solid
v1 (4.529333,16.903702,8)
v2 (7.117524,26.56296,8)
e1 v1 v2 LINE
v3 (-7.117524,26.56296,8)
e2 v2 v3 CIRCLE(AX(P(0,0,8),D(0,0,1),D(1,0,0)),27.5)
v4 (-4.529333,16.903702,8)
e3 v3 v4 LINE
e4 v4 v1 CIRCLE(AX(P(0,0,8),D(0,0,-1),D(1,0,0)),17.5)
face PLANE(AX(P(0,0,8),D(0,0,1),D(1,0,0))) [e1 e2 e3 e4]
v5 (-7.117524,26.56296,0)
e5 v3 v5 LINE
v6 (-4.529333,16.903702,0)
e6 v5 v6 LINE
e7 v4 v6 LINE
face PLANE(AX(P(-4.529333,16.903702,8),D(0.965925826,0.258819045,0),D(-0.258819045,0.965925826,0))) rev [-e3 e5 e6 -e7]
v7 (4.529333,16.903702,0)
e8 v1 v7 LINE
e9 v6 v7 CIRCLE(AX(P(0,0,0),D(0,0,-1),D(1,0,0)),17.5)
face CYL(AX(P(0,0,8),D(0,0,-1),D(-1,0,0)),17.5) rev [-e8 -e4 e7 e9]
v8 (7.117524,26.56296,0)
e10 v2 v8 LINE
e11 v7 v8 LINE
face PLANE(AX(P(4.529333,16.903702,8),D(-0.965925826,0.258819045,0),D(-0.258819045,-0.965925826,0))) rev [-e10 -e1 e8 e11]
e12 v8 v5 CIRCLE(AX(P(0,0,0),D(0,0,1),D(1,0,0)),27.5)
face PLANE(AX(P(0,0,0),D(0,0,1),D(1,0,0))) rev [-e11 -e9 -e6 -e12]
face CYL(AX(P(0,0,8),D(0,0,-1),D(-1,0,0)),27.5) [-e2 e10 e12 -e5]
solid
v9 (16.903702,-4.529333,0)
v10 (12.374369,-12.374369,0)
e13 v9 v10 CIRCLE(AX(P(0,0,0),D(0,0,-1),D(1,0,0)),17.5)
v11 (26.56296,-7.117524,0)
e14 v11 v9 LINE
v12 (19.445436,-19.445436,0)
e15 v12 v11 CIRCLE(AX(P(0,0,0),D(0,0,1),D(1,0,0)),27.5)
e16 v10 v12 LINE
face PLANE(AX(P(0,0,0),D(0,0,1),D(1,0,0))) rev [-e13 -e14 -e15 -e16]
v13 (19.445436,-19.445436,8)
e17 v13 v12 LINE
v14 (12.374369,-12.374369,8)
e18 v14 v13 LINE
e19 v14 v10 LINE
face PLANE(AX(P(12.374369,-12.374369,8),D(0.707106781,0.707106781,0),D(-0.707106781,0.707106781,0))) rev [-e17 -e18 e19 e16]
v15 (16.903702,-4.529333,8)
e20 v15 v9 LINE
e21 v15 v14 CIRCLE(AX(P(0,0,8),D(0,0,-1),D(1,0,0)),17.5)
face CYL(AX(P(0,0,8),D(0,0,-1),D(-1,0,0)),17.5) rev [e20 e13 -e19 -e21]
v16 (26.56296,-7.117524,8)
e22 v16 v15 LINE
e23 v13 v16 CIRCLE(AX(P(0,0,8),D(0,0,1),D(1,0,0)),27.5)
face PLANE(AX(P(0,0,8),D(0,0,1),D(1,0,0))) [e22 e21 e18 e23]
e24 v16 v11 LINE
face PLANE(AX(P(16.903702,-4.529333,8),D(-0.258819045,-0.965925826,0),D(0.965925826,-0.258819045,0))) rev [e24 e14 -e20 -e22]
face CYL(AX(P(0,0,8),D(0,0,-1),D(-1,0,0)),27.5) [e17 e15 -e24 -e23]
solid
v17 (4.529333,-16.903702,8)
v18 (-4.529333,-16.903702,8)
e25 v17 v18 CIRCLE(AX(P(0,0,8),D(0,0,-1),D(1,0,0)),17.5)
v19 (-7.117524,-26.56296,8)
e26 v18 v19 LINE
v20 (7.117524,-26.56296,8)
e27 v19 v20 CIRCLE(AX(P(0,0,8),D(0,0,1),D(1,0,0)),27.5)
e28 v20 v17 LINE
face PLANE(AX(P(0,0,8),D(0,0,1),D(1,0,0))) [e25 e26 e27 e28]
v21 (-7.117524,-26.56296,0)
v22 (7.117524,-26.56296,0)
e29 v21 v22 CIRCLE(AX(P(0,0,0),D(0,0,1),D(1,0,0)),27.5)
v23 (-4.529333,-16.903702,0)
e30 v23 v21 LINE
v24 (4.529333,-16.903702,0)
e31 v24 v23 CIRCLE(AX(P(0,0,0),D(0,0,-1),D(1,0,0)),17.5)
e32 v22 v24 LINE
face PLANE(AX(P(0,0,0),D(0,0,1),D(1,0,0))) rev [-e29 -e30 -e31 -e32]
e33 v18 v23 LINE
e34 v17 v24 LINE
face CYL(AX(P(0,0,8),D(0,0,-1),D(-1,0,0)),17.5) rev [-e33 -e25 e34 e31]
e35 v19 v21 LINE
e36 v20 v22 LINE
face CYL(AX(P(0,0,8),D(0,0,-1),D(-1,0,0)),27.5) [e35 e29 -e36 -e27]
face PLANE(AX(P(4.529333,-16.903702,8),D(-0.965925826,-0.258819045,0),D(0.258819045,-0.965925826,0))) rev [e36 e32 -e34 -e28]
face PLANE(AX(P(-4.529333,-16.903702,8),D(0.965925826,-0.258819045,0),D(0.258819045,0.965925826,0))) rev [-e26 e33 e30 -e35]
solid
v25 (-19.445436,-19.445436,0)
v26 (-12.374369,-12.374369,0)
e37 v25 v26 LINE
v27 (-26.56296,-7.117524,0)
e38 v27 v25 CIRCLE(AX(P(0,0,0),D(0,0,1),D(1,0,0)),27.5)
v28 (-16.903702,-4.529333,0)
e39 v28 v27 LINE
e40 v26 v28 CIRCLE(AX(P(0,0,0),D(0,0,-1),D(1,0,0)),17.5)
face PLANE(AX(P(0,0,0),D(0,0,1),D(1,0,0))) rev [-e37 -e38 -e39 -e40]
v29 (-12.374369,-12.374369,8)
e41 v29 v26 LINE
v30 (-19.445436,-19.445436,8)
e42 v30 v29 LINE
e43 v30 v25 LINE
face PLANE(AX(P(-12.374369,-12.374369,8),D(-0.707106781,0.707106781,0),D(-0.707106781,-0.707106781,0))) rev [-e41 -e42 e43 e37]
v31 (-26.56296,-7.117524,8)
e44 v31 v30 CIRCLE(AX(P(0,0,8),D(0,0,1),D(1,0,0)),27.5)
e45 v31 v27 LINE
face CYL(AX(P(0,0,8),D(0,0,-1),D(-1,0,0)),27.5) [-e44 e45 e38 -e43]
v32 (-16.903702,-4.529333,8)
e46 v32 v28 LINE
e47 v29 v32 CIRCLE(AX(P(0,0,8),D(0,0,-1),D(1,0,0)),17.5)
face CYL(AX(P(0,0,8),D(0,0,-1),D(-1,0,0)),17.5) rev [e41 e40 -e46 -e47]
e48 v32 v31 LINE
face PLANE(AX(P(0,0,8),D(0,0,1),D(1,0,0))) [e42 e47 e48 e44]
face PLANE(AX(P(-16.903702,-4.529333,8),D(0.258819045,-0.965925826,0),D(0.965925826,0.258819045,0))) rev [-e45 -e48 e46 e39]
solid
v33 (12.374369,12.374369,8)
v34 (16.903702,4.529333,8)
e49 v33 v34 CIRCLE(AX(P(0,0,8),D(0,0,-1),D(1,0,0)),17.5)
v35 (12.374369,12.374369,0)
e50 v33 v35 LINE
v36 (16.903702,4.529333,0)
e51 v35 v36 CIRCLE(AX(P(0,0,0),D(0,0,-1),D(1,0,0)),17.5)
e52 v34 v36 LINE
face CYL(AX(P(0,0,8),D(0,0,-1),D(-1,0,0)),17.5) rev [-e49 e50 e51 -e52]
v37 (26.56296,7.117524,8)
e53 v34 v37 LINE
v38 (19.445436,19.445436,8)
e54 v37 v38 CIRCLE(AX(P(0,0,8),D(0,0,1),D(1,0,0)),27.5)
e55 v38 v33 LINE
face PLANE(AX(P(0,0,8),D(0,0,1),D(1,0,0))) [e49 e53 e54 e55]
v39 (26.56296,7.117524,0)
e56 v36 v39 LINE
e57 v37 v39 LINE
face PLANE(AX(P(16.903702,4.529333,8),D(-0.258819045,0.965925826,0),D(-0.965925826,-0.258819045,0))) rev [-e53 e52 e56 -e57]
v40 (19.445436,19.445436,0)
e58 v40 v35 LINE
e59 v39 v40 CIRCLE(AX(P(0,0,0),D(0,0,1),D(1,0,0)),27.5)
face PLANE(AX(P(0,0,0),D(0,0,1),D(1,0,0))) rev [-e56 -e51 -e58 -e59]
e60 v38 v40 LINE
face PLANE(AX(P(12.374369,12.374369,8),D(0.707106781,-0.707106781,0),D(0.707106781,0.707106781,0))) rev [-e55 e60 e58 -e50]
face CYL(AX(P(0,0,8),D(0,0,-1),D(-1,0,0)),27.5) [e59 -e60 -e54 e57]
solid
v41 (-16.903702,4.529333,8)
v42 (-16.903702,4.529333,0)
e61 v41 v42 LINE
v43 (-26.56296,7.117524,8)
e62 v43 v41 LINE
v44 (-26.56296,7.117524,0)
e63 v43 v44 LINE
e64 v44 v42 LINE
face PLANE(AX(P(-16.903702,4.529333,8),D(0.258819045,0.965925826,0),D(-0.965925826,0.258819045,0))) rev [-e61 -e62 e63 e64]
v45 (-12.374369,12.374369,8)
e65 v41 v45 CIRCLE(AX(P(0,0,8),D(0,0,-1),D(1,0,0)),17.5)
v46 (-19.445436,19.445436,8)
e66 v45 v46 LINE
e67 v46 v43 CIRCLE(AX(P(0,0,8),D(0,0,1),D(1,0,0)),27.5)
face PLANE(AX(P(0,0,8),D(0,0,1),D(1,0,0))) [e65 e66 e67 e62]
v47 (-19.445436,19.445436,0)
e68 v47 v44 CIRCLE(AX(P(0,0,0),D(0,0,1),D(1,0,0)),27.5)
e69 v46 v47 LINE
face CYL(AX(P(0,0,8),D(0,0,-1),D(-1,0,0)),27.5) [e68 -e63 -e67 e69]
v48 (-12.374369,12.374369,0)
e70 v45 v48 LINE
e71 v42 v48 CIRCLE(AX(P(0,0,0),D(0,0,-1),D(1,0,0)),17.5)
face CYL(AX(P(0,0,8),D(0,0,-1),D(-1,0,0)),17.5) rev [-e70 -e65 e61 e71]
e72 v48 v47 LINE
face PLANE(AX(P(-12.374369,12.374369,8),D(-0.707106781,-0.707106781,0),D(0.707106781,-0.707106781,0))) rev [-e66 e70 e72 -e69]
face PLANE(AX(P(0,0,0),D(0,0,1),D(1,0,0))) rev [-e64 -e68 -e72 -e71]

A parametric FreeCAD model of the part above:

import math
import FreeCAD as App
import Part
import Sketcher

V = App.Vector
Q = App.Units.Quantity

doc = App.newDocument("Part")
params = doc.addObject("Spreadsheet::Sheet", "Params")
for row, (alias, value) in enumerate([
    ("sketch1_radius", "17.5 mm"),
    ("sketch1_radius2", "27.5 mm"),
    ("pad1_length", "8 mm"),
    ("sketch2_radius", "17.5 mm"),
    ("sketch2_radius2", "27.5 mm"),
    ("pad2_length", "8 mm"),
    ("sketch3_radius", "17.5 mm"),
    ("sketch3_radius2", "27.5 mm"),
    ("pad3_length", "8 mm"),
    ("sketch4_radius", "17.5 mm"),
    ("sketch4_radius2", "27.5 mm"),
    ("pad4_length", "8 mm"),
    ("sketch5_radius", "17.5 mm"),
    ("sketch5_radius2", "27.5 mm"),
    ("pad5_length", "8 mm"),
    ("sketch6_radius", "17.5 mm"),
    ("sketch6_radius2", "27.5 mm"),
    ("pad6_length", "8 mm"),
], start=1):
    params.set(f"A{row}", alias)
    params.set(f"B{row}", "=" + value)
    params.setAlias(f"B{row}", alias)

body = doc.addObject("PartDesign::Body", "Body")

# Sketch on XY plane
sketch1 = body.newObject("Sketcher::SketchObject", "Sketch")
sketch1.AttachmentSupport = (doc.getObject("XY_Plane"), [""])
sketch1.MapMode = "FlatFace"
sketch1.addGeometry(Part.LineSegment(V(-7, 27, 0), V(-5, 17, 0)), False)
sketch1.addGeometry(Part.ArcOfCircle(Part.Circle(V(0, 0, 0), V(0, 0, 1), 17), math.radians(75), math.radians(105)), False)
sketch1.addGeometry(Part.LineSegment(V(5, 17, 0), V(7, 27, 0)), False)
sketch1.addGeometry(Part.ArcOfCircle(Part.Circle(V(0, 0, 0), V(0, 0, 1), 27), math.radians(75), math.radians(105)), False)
sketch1.addConstraint(Sketcher.Constraint("Coincident", 0, 2, 1, 2))
sketch1.addConstraint(Sketcher.Constraint("Coincident", 1, 1, 2, 1))
sketch1.addConstraint(Sketcher.Constraint("Coincident", 2, 2, 3, 1))
sketch1.addConstraint(Sketcher.Constraint("Coincident", 3, 2, 0, 1))
sketch1.addConstraint(Sketcher.Constraint("Coincident", 1, 3, -1, 1))
sketch1.addConstraint(Sketcher.Constraint("Coincident", 3, 3, -1, 1))
sketch1.addConstraint(Sketcher.Constraint("Horizontal", 0, 2, 1, 1))
sketch1.addConstraint(Sketcher.Constraint("Horizontal", 2, 2, 3, 2))
sketch1.addConstraint(Sketcher.Constraint("Radius", 1, 17.5))
sketch1.addConstraint(Sketcher.Constraint("Radius", 3, 27.5))
sketch1.addConstraint(Sketcher.Constraint("Angle", 0, Q("-75 deg")))
sketch1.addConstraint(Sketcher.Constraint("DistanceY", -1, 1, 0, 2, 16.903702))
sketch1.setExpression("Constraints[8]", "Params.sketch1_radius")
sketch1.setExpression("Constraints[9]", "Params.sketch1_radius2")
pad1 = body.newObject("PartDesign::Pad", "Pad")
pad1.Profile = sketch1
pad1.setExpression("Length", "Params.pad1_length")
body2 = doc.addObject("PartDesign::Body", "Body001")

# Sketch on XY plane
sketch2 = body2.newObject("Sketcher::SketchObject", "Sketch001")
sketch2.AttachmentSupport = (doc.getObject("XY_Plane001"), [""])
sketch2.MapMode = "FlatFace"
sketch2.addGeometry(Part.LineSegment(V(19, 19, 0), V(12, 12, 0)), False)
sketch2.addGeometry(Part.ArcOfCircle(Part.Circle(V(0, 0, 0), V(0, 0, 1), 18), math.radians(15), math.radians(45)), False)
sketch2.addGeometry(Part.LineSegment(V(17, 5, 0), V(27, 7, 0)), False)
sketch2.addGeometry(Part.ArcOfCircle(Part.Circle(V(0, 0, 0), V(0, 0, 1), 28), math.radians(15), math.radians(45)), False)
sketch2.addConstraint(Sketcher.Constraint("Coincident", 0, 2, 1, 2))
sketch2.addConstraint(Sketcher.Constraint("Coincident", 1, 1, 2, 1))
sketch2.addConstraint(Sketcher.Constraint("Coincident", 2, 2, 3, 1))
sketch2.addConstraint(Sketcher.Constraint("Coincident", 3, 2, 0, 1))
sketch2.addConstraint(Sketcher.Constraint("Coincident", 1, 3, -1, 1))
sketch2.addConstraint(Sketcher.Constraint("Coincident", 3, 3, -1, 1))
sketch2.addConstraint(Sketcher.Constraint("Radius", 1, 17.5))
sketch2.addConstraint(Sketcher.Constraint("Radius", 3, 27.5))
sketch2.addConstraint(Sketcher.Constraint("Angle", 0, Q("-135 deg")))
sketch2.addConstraint(Sketcher.Constraint("Angle", 2, Q("15 deg")))
sketch2.addConstraint(Sketcher.Constraint("DistanceX", -1, 1, 1, 1, 16.903702))
sketch2.addConstraint(Sketcher.Constraint("DistanceX", -1, 1, 0, 2, 12.374369))
sketch2.setExpression("Constraints[6]", "Params.sketch2_radius")
sketch2.setExpression("Constraints[7]", "Params.sketch2_radius2")
pad2 = body2.newObject("PartDesign::Pad", "Pad001")
pad2.Profile = sketch2
pad2.setExpression("Length", "Params.pad2_length")
body3 = doc.addObject("PartDesign::Body", "Body002")

# Sketch on XY plane
sketch3 = body3.newObject("Sketcher::SketchObject", "Sketch002")
sketch3.AttachmentSupport = (doc.getObject("XY_Plane002"), [""])
sketch3.MapMode = "FlatFace"
sketch3.addGeometry(Part.LineSegment(V(27, -7, 0), V(17, -5, 0)), False)
sketch3.addGeometry(Part.ArcOfCircle(Part.Circle(V(0, 0, 0), V(0, 0, 1), 18), math.radians(-45), math.radians(-15)), False)
sketch3.addGeometry(Part.LineSegment(V(12, -12, 0), V(19, -19, 0)), False)
sketch3.addGeometry(Part.ArcOfCircle(Part.Circle(V(0, 0, 0), V(0, 0, 1), 28), math.radians(-45), math.radians(-15)), False)
sketch3.addConstraint(Sketcher.Constraint("Coincident", 0, 2, 1, 2))
sketch3.addConstraint(Sketcher.Constraint("Coincident", 1, 1, 2, 1))
sketch3.addConstraint(Sketcher.Constraint("Coincident", 2, 2, 3, 1))
sketch3.addConstraint(Sketcher.Constraint("Coincident", 3, 2, 0, 1))
sketch3.addConstraint(Sketcher.Constraint("Coincident", 1, 3, -1, 1))
sketch3.addConstraint(Sketcher.Constraint("Coincident", 3, 3, -1, 1))
sketch3.addConstraint(Sketcher.Constraint("Radius", 1, 17.5))
sketch3.addConstraint(Sketcher.Constraint("Radius", 3, 27.5))
sketch3.addConstraint(Sketcher.Constraint("Angle", 0, Q("165 deg")))
sketch3.addConstraint(Sketcher.Constraint("Angle", 2, Q("-45 deg")))
sketch3.addConstraint(Sketcher.Constraint("DistanceX", -1, 1, 0, 2, 16.903702))
sketch3.addConstraint(Sketcher.Constraint("DistanceX", -1, 1, 1, 1, 12.374369))
sketch3.setExpression("Constraints[6]", "Params.sketch3_radius")
sketch3.setExpression("Constraints[7]", "Params.sketch3_radius2")
pad3 = body3.newObject("PartDesign::Pad", "Pad002")
pad3.Profile = sketch3
pad3.setExpression("Length", "Params.pad3_length")
body4 = doc.addObject("PartDesign::Body", "Body003")

# Sketch on XY plane
sketch4 = body4.newObject("Sketcher::SketchObject", "Sketch003")
sketch4.AttachmentSupport = (doc.getObject("XY_Plane003"), [""])
sketch4.MapMode = "FlatFace"
sketch4.addGeometry(Part.LineSegment(V(7, -27, 0), V(5, -17, 0)), False)
sketch4.addGeometry(Part.ArcOfCircle(Part.Circle(V(0, 0, 0), V(0, 0, 1), 17), math.radians(-105), math.radians(-75)), False)
sketch4.addGeometry(Part.LineSegment(V(-5, -17, 0), V(-7, -27, 0)), False)
sketch4.addGeometry(Part.ArcOfCircle(Part.Circle(V(0, 0, 0), V(0, 0, 1), 27), math.radians(-105), math.radians(-75)), False)
sketch4.addConstraint(Sketcher.Constraint("Coincident", 0, 2, 1, 2))
sketch4.addConstraint(Sketcher.Constraint("Coincident", 1, 1, 2, 1))
sketch4.addConstraint(Sketcher.Constraint("Coincident", 2, 2, 3, 1))
sketch4.addConstraint(Sketcher.Constraint("Coincident", 3, 2, 0, 1))
sketch4.addConstraint(Sketcher.Constraint("Coincident", 1, 3, -1, 1))
sketch4.addConstraint(Sketcher.Constraint("Coincident", 3, 3, -1, 1))
sketch4.addConstraint(Sketcher.Constraint("Horizontal", 0, 2, 1, 1))
sketch4.addConstraint(Sketcher.Constraint("Horizontal", 2, 2, 3, 2))
sketch4.addConstraint(Sketcher.Constraint("Radius", 1, 17.5))
sketch4.addConstraint(Sketcher.Constraint("Radius", 3, 27.5))
sketch4.addConstraint(Sketcher.Constraint("Angle", 0, Q("105 deg")))
sketch4.addConstraint(Sketcher.Constraint("DistanceY", 0, 2, -1, 1, 16.903702))
sketch4.setExpression("Constraints[8]", "Params.sketch4_radius")
sketch4.setExpression("Constraints[9]", "Params.sketch4_radius2")
pad4 = body4.newObject("PartDesign::Pad", "Pad003")
pad4.Profile = sketch4
pad4.setExpression("Length", "Params.pad4_length")
body5 = doc.addObject("PartDesign::Body", "Body004")

# Sketch on XY plane
sketch5 = body5.newObject("Sketcher::SketchObject", "Sketch004")
sketch5.AttachmentSupport = (doc.getObject("XY_Plane004"), [""])
sketch5.MapMode = "FlatFace"
sketch5.addGeometry(Part.LineSegment(V(-19, -19, 0), V(-12, -12, 0)), False)
sketch5.addGeometry(Part.ArcOfCircle(Part.Circle(V(0, 0, 0), V(0, 0, 1), 18), math.radians(-165), math.radians(-135)), False)
sketch5.addGeometry(Part.LineSegment(V(-17, -5, 0), V(-27, -7, 0)), False)
sketch5.addGeometry(Part.ArcOfCircle(Part.Circle(V(0, 0, 0), V(0, 0, 1), 28), math.radians(-165), math.radians(-135)), False)
sketch5.addConstraint(Sketcher.Constraint("Coincident", 0, 2, 1, 2))
sketch5.addConstraint(Sketcher.Constraint("Coincident", 1, 1, 2, 1))
sketch5.addConstraint(Sketcher.Constraint("Coincident", 2, 2, 3, 1))
sketch5.addConstraint(Sketcher.Constraint("Coincident", 3, 2, 0, 1))
sketch5.addConstraint(Sketcher.Constraint("Coincident", 1, 3, -1, 1))
sketch5.addConstraint(Sketcher.Constraint("Coincident", 3, 3, -1, 1))
sketch5.addConstraint(Sketcher.Constraint("Radius", 1, 17.5))
sketch5.addConstraint(Sketcher.Constraint("Radius", 3, 27.5))
sketch5.addConstraint(Sketcher.Constraint("Angle", 0, Q("45 deg")))
sketch5.addConstraint(Sketcher.Constraint("Angle", 2, Q("-165 deg")))
sketch5.addConstraint(Sketcher.Constraint("DistanceX", 1, 1, -1, 1, 16.903702))
sketch5.addConstraint(Sketcher.Constraint("DistanceX", 0, 2, -1, 1, 12.374369))
sketch5.setExpression("Constraints[6]", "Params.sketch5_radius")
sketch5.setExpression("Constraints[7]", "Params.sketch5_radius2")
pad5 = body5.newObject("PartDesign::Pad", "Pad004")
pad5.Profile = sketch5
pad5.setExpression("Length", "Params.pad5_length")
body6 = doc.addObject("PartDesign::Body", "Body005")

# Sketch on XY plane
sketch6 = body6.newObject("Sketcher::SketchObject", "Sketch005")
sketch6.AttachmentSupport = (doc.getObject("XY_Plane005"), [""])
sketch6.MapMode = "FlatFace"
sketch6.addGeometry(Part.LineSegment(V(-27, 7, 0), V(-17, 5, 0)), False)
sketch6.addGeometry(Part.ArcOfCircle(Part.Circle(V(0, 0, 0), V(0, 0, 1), 18), math.radians(135), math.radians(165)), False)
sketch6.addGeometry(Part.LineSegment(V(-12, 12, 0), V(-19, 19, 0)), False)
sketch6.addGeometry(Part.ArcOfCircle(Part.Circle(V(0, 0, 0), V(0, 0, 1), 28), math.radians(135), math.radians(165)), False)
sketch6.addConstraint(Sketcher.Constraint("Coincident", 0, 2, 1, 2))
sketch6.addConstraint(Sketcher.Constraint("Coincident", 1, 1, 2, 1))
sketch6.addConstraint(Sketcher.Constraint("Coincident", 2, 2, 3, 1))
sketch6.addConstraint(Sketcher.Constraint("Coincident", 3, 2, 0, 1))
sketch6.addConstraint(Sketcher.Constraint("Coincident", 1, 3, -1, 1))
sketch6.addConstraint(Sketcher.Constraint("Coincident", 3, 3, -1, 1))
sketch6.addConstraint(Sketcher.Constraint("Radius", 1, 17.5))
sketch6.addConstraint(Sketcher.Constraint("Radius", 3, 27.5))
sketch6.addConstraint(Sketcher.Constraint("Angle", 0, Q("-15 deg")))
sketch6.addConstraint(Sketcher.Constraint("Angle", 2, Q("135 deg")))
sketch6.addConstraint(Sketcher.Constraint("DistanceX", 0, 2, -1, 1, 16.903702))
sketch6.addConstraint(Sketcher.Constraint("DistanceX", 1, 1, -1, 1, 12.374369))
sketch6.setExpression("Constraints[6]", "Params.sketch6_radius")
sketch6.setExpression("Constraints[7]", "Params.sketch6_radius2")
pad6 = body6.newObject("PartDesign::Pad", "Pad005")
pad6.Profile = sketch6
pad6.setExpression("Length", "Params.pad6_length")

doc.recompute()
